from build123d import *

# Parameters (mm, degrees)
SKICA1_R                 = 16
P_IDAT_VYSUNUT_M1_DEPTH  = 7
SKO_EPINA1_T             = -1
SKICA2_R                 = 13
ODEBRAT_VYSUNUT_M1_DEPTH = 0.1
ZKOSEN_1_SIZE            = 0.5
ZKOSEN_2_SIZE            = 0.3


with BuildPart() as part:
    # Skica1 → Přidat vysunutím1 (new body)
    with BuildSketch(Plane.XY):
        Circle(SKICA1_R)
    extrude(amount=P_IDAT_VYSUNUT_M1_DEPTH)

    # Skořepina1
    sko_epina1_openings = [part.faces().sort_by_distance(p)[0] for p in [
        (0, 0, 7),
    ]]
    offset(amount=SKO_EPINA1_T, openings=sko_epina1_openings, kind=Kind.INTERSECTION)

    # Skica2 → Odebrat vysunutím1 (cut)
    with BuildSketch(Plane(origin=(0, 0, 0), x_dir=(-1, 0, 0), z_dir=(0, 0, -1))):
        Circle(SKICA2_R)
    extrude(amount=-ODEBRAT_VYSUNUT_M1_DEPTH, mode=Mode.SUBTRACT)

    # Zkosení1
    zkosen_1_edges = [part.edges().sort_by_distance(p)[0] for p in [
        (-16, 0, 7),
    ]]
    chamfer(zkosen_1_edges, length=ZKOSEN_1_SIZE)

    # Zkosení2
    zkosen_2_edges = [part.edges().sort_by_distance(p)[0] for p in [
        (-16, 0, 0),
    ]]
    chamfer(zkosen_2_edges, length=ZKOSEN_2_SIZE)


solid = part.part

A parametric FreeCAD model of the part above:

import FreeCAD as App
import Part
import Sketcher
Q = App.Units.Quantity


def edges_at(feature, points):
    """Names of the edges that pass closest to the given points."""
    edges = feature.Shape.Edges
    near = lambda p: min(range(len(edges)), key=lambda i: edges[i].distToShape(Part.Vertex(*p))[0])
    return sorted({f"Edge{near(p) + 1}" for p in points})


def faces_at(feature, points):
    """Names of the faces that lie closest to the given points."""
    faces = feature.Shape.Faces
    near = lambda p: min(range(len(faces)), key=lambda i: faces[i].distToShape(Part.Vertex(*p))[0])
    return sorted({f"Face{near(p) + 1}" for p in points})

doc = App.newDocument("Part")
body = doc.addObject("PartDesign::Body", "Body")

# Sketch on XY plane
sketch1 = body.newObject("Sketcher::SketchObject", "Sketch")
sketch1.AttachmentSupport = (doc.getObject("XY_Plane"), [""])
sketch1.MapMode = "FlatFace"
sketch1.addGeometry(Part.Circle(App.Vector(0, 0, 0), App.Vector(0, 0, 1), 16), False)
sketch1.addConstraint([
    Sketcher.Constraint("Coincident", 0, 3, -1, 1),
    Sketcher.Constraint("Diameter", 0, Q("32 mm")),
])
pad1 = body.newObject("PartDesign::Pad", "Pad")
pad1.Profile = sketch1
pad1.Length = 7
doc.recompute()

thickness = body.newObject("PartDesign::Thickness", "Thickness")
thickness.Base = (pad1, faces_at(pad1, [(0, 0, 7)]))
thickness.Value = 1
thickness.Reversed = True
thickness.Join = "Intersection"

# Sketch on XY plane
sketch2 = body.newObject("Sketcher::SketchObject", "Sketch001")
sketch2.AttachmentSupport = (doc.getObject("XY_Plane"), [""])
sketch2.MapMode = "FlatFace"
sketch2.addGeometry(Part.Circle(App.Vector(0, 0, 0), App.Vector(0, 0, 1), 13), False)
sketch2.addConstraint([
    Sketcher.Constraint("Coincident", 0, 3, -1, 1),
    Sketcher.Constraint("Diameter", 0, Q("26 mm")),
])
pocket1 = body.newObject("PartDesign::Pocket", "Pocket")
pocket1.Profile = sketch2
pocket1.Length = 0.1
pocket1.Reversed = True
doc.recompute()

chamfer = body.newObject("PartDesign::Chamfer", "Chamfer")
chamfer.Base = (pocket1, edges_at(pocket1, [(-16, 0, 7)]))
chamfer.Size = 0.5
doc.recompute()

chamfer2 = body.newObject("PartDesign::Chamfer", "Chamfer001")
chamfer2.Base = (chamfer, edges_at(chamfer, [(-16, 0, 0)]))
chamfer2.Size = 0.3

doc.recompute()
